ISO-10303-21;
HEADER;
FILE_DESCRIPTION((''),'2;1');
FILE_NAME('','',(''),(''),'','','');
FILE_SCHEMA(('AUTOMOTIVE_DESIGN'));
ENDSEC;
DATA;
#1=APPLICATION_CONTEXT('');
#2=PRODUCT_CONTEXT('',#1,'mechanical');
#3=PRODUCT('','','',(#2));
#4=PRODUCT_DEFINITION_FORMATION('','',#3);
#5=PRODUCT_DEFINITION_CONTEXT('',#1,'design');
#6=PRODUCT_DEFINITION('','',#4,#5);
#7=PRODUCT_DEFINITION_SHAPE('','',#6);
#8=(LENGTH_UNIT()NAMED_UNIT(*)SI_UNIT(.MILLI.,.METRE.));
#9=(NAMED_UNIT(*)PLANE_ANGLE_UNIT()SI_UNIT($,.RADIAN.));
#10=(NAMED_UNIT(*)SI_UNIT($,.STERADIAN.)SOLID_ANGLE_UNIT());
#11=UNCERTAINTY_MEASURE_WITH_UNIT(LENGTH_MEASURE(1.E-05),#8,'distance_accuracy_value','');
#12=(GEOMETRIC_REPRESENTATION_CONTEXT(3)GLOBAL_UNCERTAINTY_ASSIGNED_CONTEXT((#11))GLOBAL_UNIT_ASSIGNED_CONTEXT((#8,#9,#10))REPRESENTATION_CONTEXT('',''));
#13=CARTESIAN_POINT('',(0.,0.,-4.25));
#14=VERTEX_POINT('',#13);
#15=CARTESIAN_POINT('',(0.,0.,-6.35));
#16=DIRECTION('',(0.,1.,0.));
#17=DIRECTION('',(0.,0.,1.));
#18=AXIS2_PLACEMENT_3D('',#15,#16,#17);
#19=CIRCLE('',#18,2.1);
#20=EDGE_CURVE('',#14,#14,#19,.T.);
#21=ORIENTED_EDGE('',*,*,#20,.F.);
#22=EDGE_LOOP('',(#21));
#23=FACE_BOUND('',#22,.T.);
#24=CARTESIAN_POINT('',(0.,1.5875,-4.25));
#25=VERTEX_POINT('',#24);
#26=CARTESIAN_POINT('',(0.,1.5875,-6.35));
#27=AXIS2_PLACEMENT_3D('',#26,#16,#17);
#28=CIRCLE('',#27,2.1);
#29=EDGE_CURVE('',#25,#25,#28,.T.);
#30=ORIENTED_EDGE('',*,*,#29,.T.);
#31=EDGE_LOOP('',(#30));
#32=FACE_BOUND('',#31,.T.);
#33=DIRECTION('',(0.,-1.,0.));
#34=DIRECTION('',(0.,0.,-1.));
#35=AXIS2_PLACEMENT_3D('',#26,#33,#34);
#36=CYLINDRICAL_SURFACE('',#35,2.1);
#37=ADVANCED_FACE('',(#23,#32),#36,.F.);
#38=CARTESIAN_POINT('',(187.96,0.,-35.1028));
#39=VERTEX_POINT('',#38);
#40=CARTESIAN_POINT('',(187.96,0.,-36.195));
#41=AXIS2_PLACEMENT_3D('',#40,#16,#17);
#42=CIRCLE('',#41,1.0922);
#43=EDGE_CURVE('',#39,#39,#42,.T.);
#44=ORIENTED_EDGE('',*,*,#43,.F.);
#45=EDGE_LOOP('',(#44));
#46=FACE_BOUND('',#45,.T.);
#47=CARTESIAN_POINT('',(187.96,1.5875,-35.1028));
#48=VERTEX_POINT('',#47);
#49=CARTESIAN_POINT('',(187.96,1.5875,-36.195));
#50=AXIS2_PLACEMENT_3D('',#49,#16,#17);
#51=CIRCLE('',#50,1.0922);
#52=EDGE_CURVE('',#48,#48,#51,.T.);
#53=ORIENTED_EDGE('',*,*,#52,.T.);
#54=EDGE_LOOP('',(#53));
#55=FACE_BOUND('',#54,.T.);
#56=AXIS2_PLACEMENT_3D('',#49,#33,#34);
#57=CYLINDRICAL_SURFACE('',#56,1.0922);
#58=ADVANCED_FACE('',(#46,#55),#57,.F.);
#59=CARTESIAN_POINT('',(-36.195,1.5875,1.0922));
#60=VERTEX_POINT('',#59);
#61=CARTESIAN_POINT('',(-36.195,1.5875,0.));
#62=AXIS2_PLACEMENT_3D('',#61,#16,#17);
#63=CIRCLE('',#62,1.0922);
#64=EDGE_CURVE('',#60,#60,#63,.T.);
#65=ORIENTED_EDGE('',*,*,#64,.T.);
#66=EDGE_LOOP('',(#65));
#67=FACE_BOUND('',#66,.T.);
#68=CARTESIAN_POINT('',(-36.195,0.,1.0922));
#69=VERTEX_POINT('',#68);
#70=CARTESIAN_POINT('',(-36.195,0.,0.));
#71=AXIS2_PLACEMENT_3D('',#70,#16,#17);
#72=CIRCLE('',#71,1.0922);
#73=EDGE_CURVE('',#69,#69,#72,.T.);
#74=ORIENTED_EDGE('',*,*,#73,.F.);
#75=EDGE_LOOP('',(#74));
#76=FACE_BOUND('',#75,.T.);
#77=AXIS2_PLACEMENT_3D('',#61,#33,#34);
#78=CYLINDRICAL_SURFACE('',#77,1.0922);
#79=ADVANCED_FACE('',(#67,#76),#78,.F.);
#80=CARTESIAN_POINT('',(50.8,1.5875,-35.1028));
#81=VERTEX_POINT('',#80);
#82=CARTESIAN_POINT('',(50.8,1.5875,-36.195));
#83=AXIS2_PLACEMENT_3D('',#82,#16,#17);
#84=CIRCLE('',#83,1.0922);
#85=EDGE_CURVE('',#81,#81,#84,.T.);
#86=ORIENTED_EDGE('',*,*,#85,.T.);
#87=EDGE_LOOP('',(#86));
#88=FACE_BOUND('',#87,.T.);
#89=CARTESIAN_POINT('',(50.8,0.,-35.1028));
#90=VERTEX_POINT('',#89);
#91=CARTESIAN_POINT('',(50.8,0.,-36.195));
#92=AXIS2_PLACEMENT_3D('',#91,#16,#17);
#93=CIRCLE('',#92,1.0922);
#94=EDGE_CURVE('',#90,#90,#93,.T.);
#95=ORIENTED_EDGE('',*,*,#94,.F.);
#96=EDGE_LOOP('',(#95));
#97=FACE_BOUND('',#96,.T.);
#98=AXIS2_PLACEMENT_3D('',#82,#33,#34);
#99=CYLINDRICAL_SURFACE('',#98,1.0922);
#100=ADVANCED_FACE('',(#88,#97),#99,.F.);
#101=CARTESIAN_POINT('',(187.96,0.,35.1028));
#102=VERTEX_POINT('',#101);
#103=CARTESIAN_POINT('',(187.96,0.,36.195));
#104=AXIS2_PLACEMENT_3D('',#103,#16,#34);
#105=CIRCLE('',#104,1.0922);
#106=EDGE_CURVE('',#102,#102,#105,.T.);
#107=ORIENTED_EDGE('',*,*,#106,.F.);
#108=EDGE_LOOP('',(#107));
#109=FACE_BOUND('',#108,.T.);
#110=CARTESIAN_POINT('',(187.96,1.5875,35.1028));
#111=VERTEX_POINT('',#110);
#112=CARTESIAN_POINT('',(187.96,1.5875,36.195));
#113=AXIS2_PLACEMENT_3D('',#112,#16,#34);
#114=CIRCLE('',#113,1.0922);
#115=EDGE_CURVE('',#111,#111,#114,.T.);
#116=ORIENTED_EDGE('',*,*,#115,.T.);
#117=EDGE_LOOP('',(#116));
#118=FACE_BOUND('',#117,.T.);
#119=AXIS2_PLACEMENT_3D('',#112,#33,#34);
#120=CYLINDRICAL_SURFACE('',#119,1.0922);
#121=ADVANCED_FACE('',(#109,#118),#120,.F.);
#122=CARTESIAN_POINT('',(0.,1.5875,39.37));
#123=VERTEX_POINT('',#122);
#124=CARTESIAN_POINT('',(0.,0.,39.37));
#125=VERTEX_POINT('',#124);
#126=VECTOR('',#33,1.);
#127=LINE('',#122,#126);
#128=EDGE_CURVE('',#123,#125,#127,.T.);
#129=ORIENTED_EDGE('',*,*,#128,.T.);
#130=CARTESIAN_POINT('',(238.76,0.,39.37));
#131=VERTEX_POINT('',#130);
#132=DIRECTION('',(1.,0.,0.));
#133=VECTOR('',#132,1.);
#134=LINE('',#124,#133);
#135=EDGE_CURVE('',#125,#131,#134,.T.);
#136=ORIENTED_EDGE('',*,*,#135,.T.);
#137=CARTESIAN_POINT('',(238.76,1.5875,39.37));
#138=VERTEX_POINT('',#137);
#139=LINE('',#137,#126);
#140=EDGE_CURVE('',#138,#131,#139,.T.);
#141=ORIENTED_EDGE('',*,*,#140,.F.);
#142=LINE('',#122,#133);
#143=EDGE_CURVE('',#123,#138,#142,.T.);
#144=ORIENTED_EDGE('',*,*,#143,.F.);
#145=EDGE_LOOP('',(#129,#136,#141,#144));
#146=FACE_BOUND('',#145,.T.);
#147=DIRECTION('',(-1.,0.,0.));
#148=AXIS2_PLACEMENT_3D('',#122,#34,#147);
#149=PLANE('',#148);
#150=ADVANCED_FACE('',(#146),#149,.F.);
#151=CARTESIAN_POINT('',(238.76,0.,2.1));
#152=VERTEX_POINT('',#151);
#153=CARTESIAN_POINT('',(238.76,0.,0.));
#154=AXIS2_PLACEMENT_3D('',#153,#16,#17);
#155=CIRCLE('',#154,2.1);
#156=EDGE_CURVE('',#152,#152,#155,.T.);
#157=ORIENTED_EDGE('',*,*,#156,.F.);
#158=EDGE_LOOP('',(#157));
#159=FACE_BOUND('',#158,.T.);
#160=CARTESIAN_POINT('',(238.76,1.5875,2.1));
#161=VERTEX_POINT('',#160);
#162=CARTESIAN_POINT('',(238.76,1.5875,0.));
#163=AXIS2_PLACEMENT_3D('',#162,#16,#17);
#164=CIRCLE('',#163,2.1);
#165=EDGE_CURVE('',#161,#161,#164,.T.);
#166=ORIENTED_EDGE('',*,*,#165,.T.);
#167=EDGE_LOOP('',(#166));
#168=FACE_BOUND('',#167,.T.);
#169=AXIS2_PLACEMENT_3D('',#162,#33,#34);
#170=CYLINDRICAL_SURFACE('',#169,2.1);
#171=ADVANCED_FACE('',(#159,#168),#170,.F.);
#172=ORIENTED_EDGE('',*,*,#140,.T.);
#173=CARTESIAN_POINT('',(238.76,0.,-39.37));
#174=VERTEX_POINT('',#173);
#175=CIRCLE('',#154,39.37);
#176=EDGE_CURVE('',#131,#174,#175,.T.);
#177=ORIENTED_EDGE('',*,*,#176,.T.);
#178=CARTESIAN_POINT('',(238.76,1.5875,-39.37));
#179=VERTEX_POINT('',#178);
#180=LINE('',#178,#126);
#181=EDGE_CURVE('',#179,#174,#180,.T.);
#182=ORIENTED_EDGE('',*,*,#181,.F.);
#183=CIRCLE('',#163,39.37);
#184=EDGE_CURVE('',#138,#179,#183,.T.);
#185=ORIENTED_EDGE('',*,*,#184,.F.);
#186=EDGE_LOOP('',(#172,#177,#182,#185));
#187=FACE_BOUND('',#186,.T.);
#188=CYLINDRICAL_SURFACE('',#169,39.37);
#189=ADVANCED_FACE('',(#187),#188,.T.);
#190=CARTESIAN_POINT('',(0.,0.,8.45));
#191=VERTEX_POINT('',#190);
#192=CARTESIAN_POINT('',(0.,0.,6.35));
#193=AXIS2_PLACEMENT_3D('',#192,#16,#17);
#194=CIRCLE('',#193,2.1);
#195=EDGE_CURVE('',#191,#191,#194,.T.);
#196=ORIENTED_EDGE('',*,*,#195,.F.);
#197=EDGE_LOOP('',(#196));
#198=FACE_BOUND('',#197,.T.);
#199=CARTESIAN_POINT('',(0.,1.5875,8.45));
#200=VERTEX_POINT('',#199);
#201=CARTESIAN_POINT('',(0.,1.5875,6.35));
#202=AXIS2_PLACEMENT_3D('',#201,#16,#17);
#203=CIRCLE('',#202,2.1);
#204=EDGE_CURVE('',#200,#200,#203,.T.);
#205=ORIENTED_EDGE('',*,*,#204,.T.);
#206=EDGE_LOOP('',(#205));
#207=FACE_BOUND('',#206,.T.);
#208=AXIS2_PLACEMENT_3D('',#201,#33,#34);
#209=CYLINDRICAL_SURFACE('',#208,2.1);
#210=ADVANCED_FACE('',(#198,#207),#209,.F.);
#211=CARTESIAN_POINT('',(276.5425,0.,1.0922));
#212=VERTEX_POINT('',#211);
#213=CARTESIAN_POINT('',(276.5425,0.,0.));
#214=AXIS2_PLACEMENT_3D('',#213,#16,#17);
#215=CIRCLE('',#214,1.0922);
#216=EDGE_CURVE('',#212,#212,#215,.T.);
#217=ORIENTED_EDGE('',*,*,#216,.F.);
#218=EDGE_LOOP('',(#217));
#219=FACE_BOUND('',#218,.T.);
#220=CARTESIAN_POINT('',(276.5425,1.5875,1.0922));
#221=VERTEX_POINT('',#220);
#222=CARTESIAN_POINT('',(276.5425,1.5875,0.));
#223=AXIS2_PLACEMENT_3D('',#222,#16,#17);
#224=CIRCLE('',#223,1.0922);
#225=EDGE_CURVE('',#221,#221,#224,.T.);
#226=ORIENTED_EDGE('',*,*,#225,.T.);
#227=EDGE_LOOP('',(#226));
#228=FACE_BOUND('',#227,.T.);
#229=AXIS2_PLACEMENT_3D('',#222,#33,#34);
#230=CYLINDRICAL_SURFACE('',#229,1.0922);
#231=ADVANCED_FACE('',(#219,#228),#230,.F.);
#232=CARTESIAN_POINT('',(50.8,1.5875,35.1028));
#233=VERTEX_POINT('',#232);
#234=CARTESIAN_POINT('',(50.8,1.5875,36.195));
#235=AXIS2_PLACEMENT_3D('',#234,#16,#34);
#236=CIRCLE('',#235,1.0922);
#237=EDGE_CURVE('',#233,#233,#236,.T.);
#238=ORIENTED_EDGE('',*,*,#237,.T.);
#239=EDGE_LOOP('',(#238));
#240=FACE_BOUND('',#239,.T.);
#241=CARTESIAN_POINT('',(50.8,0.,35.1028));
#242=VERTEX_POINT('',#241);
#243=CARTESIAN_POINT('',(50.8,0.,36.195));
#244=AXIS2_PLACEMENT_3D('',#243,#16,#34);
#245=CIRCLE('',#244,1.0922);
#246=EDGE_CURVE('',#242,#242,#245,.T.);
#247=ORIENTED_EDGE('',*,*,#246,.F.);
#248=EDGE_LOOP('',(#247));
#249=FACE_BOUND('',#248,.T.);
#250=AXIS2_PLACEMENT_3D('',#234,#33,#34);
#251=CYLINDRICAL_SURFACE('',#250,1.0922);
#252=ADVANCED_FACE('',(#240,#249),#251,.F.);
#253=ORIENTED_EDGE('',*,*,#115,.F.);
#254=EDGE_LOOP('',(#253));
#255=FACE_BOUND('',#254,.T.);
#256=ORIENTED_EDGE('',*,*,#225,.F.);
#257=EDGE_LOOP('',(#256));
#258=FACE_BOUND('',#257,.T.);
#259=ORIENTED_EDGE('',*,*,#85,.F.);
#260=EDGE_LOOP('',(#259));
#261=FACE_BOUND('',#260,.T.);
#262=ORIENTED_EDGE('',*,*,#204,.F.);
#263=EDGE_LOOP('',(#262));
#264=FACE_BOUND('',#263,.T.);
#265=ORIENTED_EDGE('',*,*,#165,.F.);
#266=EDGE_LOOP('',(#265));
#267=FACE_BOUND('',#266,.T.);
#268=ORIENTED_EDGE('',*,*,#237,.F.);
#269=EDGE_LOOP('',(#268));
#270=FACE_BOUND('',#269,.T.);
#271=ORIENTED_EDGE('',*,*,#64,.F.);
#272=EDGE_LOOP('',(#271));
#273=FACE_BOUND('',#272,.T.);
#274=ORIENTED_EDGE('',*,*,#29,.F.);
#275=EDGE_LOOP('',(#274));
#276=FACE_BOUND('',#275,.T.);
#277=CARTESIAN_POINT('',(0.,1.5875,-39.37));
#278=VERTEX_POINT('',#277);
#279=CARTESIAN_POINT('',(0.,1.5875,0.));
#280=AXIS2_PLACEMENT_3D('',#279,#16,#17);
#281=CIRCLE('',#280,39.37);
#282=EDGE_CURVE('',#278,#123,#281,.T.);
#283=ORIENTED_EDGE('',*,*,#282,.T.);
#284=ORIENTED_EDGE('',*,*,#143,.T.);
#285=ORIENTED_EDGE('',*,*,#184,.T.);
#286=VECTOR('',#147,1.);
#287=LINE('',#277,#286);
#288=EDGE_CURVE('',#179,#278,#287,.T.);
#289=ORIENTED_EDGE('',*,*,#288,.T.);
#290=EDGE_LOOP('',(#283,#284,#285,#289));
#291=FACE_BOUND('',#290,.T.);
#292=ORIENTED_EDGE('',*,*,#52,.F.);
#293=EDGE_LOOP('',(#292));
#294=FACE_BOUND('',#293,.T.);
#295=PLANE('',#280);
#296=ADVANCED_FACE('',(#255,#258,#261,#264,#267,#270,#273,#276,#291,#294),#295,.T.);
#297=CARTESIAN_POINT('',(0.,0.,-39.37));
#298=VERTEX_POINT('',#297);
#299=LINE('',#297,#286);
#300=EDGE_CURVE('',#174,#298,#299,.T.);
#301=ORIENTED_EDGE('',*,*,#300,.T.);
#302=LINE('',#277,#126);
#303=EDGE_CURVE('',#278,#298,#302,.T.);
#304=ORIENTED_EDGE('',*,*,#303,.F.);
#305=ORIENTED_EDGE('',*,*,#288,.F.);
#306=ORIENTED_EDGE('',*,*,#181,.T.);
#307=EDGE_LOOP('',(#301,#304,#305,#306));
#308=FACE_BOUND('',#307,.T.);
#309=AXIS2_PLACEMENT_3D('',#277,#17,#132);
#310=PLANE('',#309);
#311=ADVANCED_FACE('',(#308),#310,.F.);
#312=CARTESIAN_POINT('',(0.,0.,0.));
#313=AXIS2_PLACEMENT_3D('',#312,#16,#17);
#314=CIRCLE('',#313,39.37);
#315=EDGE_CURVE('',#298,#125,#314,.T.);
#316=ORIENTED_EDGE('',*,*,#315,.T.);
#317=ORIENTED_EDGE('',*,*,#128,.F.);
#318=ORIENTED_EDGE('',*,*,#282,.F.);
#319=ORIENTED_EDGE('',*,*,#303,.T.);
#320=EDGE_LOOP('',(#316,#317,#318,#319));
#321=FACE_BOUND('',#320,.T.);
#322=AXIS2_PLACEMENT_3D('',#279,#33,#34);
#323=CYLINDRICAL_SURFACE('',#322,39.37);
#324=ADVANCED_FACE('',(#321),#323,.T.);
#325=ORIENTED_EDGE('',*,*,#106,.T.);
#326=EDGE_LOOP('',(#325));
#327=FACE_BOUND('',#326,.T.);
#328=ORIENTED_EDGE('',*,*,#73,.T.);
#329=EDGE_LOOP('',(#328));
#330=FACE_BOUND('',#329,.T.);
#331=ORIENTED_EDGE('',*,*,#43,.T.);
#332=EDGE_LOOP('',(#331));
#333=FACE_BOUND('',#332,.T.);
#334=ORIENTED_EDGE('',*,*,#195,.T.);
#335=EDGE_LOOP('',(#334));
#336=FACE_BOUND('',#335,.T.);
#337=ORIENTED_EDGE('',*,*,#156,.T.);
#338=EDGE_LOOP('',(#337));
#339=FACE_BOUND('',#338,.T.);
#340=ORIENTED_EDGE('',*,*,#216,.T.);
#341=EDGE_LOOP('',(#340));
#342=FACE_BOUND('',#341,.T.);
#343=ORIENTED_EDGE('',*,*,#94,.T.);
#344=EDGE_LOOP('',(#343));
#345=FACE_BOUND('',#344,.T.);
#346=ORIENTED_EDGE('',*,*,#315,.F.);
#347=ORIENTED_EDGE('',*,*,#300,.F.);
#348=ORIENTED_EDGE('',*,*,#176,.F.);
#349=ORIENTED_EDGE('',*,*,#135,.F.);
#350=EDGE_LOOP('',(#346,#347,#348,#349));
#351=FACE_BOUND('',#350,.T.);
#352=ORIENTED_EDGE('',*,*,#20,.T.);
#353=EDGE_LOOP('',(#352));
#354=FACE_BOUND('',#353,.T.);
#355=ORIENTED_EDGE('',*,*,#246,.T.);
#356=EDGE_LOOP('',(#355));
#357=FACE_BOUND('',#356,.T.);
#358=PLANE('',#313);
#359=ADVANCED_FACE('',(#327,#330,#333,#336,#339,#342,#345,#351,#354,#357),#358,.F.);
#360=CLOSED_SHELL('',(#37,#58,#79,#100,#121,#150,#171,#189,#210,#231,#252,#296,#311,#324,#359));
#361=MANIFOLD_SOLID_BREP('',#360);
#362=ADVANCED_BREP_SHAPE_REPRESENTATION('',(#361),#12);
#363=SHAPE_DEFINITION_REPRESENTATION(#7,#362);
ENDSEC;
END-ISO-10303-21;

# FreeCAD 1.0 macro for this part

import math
import FreeCAD as App
import Part
import Sketcher
from FreeCAD import Vector
Q = App.Units.Quantity

doc = App.newDocument("Part")
body = doc.addObject("PartDesign::Body", "Body")

# Sketch on XZ plane
sketch1 = body.newObject("Sketcher::SketchObject", "Sketch")
sketch1.AttachmentSupport = (doc.getObject("XZ_Plane"), [""])
sketch1.MapMode = "FlatFace"
sketch1.addGeometry([
    Part.LineSegment(Vector(238.8, -39.4, 0), Vector(0, -39.4, 0)),  # 0
    Part.ArcOfCircle(Part.Circle(Vector(0, 0, 0), Vector(0, 0, 1), 39.4), math.radians(90), math.radians(270)),  # 1
    Part.LineSegment(Vector(0, 39.4, 0), Vector(238.8, 39.4, 0)),  # 2
    Part.ArcOfCircle(Part.Circle(Vector(238.8, 0, 0), Vector(0, 0, 1), 39.4), math.radians(-90), math.radians(90)),  # 3
    Part.Circle(Vector(188, 36.2, 0), Vector(0, 0, 1), 1.1),  # 4
    Part.Circle(Vector(50.8, 36.2, 0), Vector(0, 0, 1), 1.1),  # 5
    Part.Circle(Vector(0, 6.3, 0), Vector(0, 0, 1), 2.1),  # 6
    Part.Circle(Vector(276.5, 0, 0), Vector(0, 0, 1), 1.1),  # 7
    Part.Circle(Vector(238.8, 0, 0), Vector(0, 0, 1), 2.1),  # 8
    Part.Circle(Vector(188, -36.2, 0), Vector(0, 0, 1), 1.1),  # 9
    Part.Circle(Vector(-36.2, 0, 0), Vector(0, 0, 1), 1.1),  # 10
    Part.Circle(Vector(0, -6.3, 0), Vector(0, 0, 1), 2.1),  # 11
    Part.Circle(Vector(50.8, -36.2, 0), Vector(0, 0, 1), 1.1),  # 12
], False)
sketch1.addConstraint([
    Sketcher.Constraint("Tangent", 0, 2, 1, 2),
    Sketcher.Constraint("Tangent", 1, 1, 2, 1),
    Sketcher.Constraint("Tangent", 2, 2, 3, 2),
    Sketcher.Constraint("Tangent", 3, 1, 0, 1),
    Sketcher.Constraint("Horizontal", 0),
    Sketcher.Constraint("Horizontal", 2),
    Sketcher.Constraint("Coincident", 1, 3, -1, 1),
    Sketcher.Constraint("Coincident", 8, 3, 3, 3),
    Sketcher.Constraint("Equal", 4, 5),
    Sketcher.Constraint("Equal", 5, 7),
    Sketcher.Constraint("Equal", 6, 8),
    Sketcher.Constraint("Equal", 7, 9),
    Sketcher.Constraint("Equal", 9, 10),
    Sketcher.Constraint("Equal", 8, 11),
    Sketcher.Constraint("Equal", 10, 12),
    Sketcher.Constraint("Symmetric", 6, 3, 11, 3, -1, 1),
    Sketcher.Constraint("Symmetric", 4, 3, 9, 3, -1),
    Sketcher.Constraint("Symmetric", 5, 3, 12, 3, -1),
    Sketcher.Constraint("PointOnObject", 6, 3, -2),
    Sketcher.Constraint("PointOnObject", 7, 3, -1),
    Sketcher.Constraint("PointOnObject", 10, 3, -1),
    Sketcher.Constraint("Horizontal", 4, 3, 5, 3),
    Sketcher.Constraint("Radius", 1, Q("1.55 in")),
    Sketcher.Constraint("Diameter", 4, Q("0.086 in")),
    Sketcher.Constraint("DistanceX", 0, 2, 0, 1, Q("9.4 in")),
    Sketcher.Constraint("DistanceX", -1, 1, 5, 3, Q("2 in")),
    Sketcher.Constraint("DistanceX", 4, 3, 3, 3, Q("2 in")),
    Sketcher.Constraint("DistanceY", 11, 3, 6, 3, Q("0.5 in")),
    Sketcher.Constraint("Diameter", 6, 4.2),
    Sketcher.Constraint("DistanceY", 9, 3, 4, 3, Q("2.85 in")),
    Sketcher.Constraint("DistanceX", 10, 3, -1, 1, Q("1.425 in")),
    Sketcher.Constraint("DistanceX", -1, 1, 7, 3, Q("10.8875 in")),
])
pad1 = body.newObject("PartDesign::Pad", "Pad")
pad1.Profile = sketch1
pad1.Length = Q("0.0625 in")
pad1.Reversed = True

doc.recompute()
